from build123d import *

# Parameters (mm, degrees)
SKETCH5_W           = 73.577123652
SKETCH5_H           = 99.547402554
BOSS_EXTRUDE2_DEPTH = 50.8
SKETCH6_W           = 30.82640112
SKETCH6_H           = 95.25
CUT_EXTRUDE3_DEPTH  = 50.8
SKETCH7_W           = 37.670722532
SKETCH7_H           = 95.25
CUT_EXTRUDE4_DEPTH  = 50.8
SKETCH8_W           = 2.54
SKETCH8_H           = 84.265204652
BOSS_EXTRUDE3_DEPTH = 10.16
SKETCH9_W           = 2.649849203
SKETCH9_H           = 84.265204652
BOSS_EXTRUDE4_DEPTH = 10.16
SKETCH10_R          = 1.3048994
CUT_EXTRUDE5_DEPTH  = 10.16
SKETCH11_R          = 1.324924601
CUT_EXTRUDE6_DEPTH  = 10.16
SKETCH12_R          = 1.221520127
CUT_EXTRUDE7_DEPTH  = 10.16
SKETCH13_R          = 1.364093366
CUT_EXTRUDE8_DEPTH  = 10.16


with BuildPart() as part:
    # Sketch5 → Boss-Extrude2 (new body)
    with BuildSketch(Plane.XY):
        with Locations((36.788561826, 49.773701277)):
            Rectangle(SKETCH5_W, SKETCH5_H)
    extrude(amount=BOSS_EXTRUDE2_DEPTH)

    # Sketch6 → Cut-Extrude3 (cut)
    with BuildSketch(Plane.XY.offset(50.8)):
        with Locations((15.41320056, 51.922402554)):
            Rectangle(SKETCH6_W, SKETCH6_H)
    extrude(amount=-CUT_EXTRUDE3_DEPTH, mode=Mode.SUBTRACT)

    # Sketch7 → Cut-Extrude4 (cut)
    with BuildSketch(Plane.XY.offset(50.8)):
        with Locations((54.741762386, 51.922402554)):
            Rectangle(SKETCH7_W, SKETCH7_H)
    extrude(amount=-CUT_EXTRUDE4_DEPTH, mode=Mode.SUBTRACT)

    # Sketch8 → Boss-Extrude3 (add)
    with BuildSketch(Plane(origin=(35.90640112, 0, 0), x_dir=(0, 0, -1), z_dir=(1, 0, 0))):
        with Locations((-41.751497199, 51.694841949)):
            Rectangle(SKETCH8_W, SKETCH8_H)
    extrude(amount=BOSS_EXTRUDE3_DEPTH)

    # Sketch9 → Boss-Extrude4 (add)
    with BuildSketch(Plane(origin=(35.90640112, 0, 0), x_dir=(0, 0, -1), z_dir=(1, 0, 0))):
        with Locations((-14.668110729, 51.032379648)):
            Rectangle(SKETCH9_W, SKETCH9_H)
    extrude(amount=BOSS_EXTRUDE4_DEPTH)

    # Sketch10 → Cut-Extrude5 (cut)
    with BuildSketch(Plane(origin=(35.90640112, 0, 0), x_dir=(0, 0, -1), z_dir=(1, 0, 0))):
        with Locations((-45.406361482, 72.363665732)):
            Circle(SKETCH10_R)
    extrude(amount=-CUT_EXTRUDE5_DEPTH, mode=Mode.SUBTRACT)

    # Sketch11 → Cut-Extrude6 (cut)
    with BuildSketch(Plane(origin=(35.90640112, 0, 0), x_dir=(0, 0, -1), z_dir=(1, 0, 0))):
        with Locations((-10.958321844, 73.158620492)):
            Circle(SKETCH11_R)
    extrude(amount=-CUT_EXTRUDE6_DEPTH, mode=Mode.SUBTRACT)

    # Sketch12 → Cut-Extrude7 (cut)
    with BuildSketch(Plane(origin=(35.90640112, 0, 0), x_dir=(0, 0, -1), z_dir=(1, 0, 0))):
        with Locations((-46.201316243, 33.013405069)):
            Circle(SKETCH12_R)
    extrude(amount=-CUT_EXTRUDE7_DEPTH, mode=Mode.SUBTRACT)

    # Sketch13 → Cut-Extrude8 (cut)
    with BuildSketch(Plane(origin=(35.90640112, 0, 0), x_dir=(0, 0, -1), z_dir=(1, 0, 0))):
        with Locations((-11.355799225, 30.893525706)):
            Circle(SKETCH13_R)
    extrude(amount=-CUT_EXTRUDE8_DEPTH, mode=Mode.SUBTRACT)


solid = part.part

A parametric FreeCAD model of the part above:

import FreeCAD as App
import Part
import Sketcher
Q = App.Units.Quantity

doc = App.newDocument("Part")
body = doc.addObject("PartDesign::Body", "Body")

# Sketch on XY plane
sketch1 = body.newObject("Sketcher::SketchObject", "Sketch")
sketch1.AttachmentSupport = (doc.getObject("XY_Plane"), [""])
sketch1.MapMode = "FlatFace"
sketch1.addGeometry(Part.LineSegment(App.Vector(0, 99.547403, 0), App.Vector(0, 0, 0)), False)
sketch1.addGeometry(Part.LineSegment(App.Vector(0, 0, 0), App.Vector(73.577124, 0, 0)), False)
sketch1.addGeometry(Part.LineSegment(App.Vector(73.577124, 0, 0), App.Vector(73.577124, 99.547403, 0)), False)
sketch1.addGeometry(Part.LineSegment(App.Vector(73.577124, 99.547403, 0), App.Vector(0, 99.547403, 0)), False)
sketch1.addConstraint(Sketcher.Constraint("Coincident", 0, 2, 1, 1))
sketch1.addConstraint(Sketcher.Constraint("Coincident", 1, 2, 2, 1))
sketch1.addConstraint(Sketcher.Constraint("Coincident", 2, 2, 3, 1))
sketch1.addConstraint(Sketcher.Constraint("Coincident", 3, 2, 0, 1))
sketch1.addConstraint(Sketcher.Constraint("Vertical", 0))
sketch1.addConstraint(Sketcher.Constraint("Horizontal", 1))
sketch1.addConstraint(Sketcher.Constraint("Vertical", 2))
sketch1.addConstraint(Sketcher.Constraint("Horizontal", 3))
sketch1.addConstraint(Sketcher.Constraint("Coincident", 0, 2, -1, 1))
sketch1.addConstraint(Sketcher.Constraint("DistanceX", 1, 1, 1, 2, Q("73.577124 mm")))
sketch1.addConstraint(Sketcher.Constraint("DistanceY", 0, 2, 0, 1, Q("99.547403 mm")))
pad1 = body.newObject("PartDesign::Pad", "Pad")
pad1.Profile = sketch1
pad1.Length = Q("2 in")

# Sketch on XY plane
sketch2 = body.newObject("Sketcher::SketchObject", "Sketch001")
sketch2.AttachmentSupport = (doc.getObject("XY_Plane"), [""])
sketch2.MapMode = "FlatFace"
sketch2.AttachmentOffset = App.Placement(App.Vector(0, 0, 2 * 25.4), App.Rotation())
sketch2.addGeometry(Part.LineSegment(App.Vector(0, 99.547403, 0), App.Vector(0, 4.297403, 0)), False)
sketch2.addGeometry(Part.LineSegment(App.Vector(0, 4.297403, 0), App.Vector(30.826401, 4.297403, 0)), False)
sketch2.addGeometry(Part.LineSegment(App.Vector(30.826401, 4.297403, 0), App.Vector(30.826401, 99.547403, 0)), False)
sketch2.addGeometry(Part.LineSegment(App.Vector(30.826401, 99.547403, 0), App.Vector(0, 99.547403, 0)), False)
sketch2.addConstraint(Sketcher.Constraint("Coincident", 0, 2, 1, 1))
sketch2.addConstraint(Sketcher.Constraint("Coincident", 1, 2, 2, 1))
sketch2.addConstraint(Sketcher.Constraint("Coincident", 2, 2, 3, 1))
sketch2.addConstraint(Sketcher.Constraint("Coincident", 3, 2, 0, 1))
sketch2.addConstraint(Sketcher.Constraint("Vertical", 0))
sketch2.addConstraint(Sketcher.Constraint("Horizontal", 1))
sketch2.addConstraint(Sketcher.Constraint("Vertical", 2))
sketch2.addConstraint(Sketcher.Constraint("Horizontal", 3))
sketch2.addConstraint(Sketcher.Constraint("PointOnObject", 0, 2, -2))
sketch2.addConstraint(Sketcher.Constraint("DistanceY", 0, 2, 0, 1, Q("3.75 in")))
sketch2.addConstraint(Sketcher.Constraint("DistanceX", 1, 1, 1, 2, Q("30.826401 mm")))
sketch2.addConstraint(Sketcher.Constraint("DistanceY", -1, 1, 0, 2, Q("4.297403 mm")))
pocket1 = body.newObject("PartDesign::Pocket", "Pocket")
pocket1.Profile = sketch2
pocket1.Length = Q("2 in")

# Sketch on XY plane
sketch3 = body.newObject("Sketcher::SketchObject", "Sketch002")
sketch3.AttachmentSupport = (doc.getObject("XY_Plane"), [""])
sketch3.MapMode = "FlatFace"
sketch3.AttachmentOffset = App.Placement(App.Vector(0, 0, 2 * 25.4), App.Rotation())
sketch3.addGeometry(Part.LineSegment(App.Vector(35.906401, 99.547403, 0), App.Vector(35.906401, 4.297403, 0)), False)
sketch3.addGeometry(Part.LineSegment(App.Vector(35.906401, 4.297403, 0), App.Vector(73.577124, 4.297403, 0)), False)
sketch3.addGeometry(Part.LineSegment(App.Vector(73.577124, 4.297403, 0), App.Vector(73.577124, 99.547403, 0)), False)
sketch3.addGeometry(Part.LineSegment(App.Vector(73.577124, 99.547403, 0), App.Vector(35.906401, 99.547403, 0)), False)
sketch3.addConstraint(Sketcher.Constraint("Coincident", 0, 2, 1, 1))
sketch3.addConstraint(Sketcher.Constraint("Coincident", 1, 2, 2, 1))
sketch3.addConstraint(Sketcher.Constraint("Coincident", 2, 2, 3, 1))
sketch3.addConstraint(Sketcher.Constraint("Coincident", 3, 2, 0, 1))
sketch3.addConstraint(Sketcher.Constraint("Vertical", 0))
sketch3.addConstraint(Sketcher.Constraint("Horizontal", 1))
sketch3.addConstraint(Sketcher.Constraint("Vertical", 2))
sketch3.addConstraint(Sketcher.Constraint("Horizontal", 3))
sketch3.addConstraint(Sketcher.Constraint("DistanceY", 0, 2, 0, 1, Q("3.75 in")))
sketch3.addConstraint(Sketcher.Constraint("DistanceX", -1, 1, 0, 2, Q("35.906401 mm")))
sketch3.addConstraint(Sketcher.Constraint("DistanceX", 1, 1, 1, 2, Q("37.670723 mm")))
sketch3.addConstraint(Sketcher.Constraint("DistanceY", -1, 1, 0, 2, Q("4.297403 mm")))
pocket2 = body.newObject("PartDesign::Pocket", "Pocket001")
pocket2.Profile = sketch3
pocket2.Length = Q("2 in")

# Sketch on YZ plane
sketch4 = body.newObject("Sketcher::SketchObject", "Sketch003")
sketch4.AttachmentSupport = (doc.getObject("YZ_Plane"), [""])
sketch4.MapMode = "FlatFace"
sketch4.AttachmentOffset = App.Placement(App.Vector(0, 0, 35.906401), App.Rotation())
sketch4.addGeometry(Part.LineSegment(App.Vector(93.827444, 43.021497, 0), App.Vector(9.56224, 43.021497, 0)), False)
sketch4.addGeometry(Part.LineSegment(App.Vector(9.56224, 43.021497, 0), App.Vector(9.56224, 40.481497, 0)), False)
sketch4.addGeometry(Part.LineSegment(App.Vector(9.56224, 40.481497, 0), App.Vector(93.827444, 40.481497, 0)), False)
sketch4.addGeometry(Part.LineSegment(App.Vector(93.827444, 40.481497, 0), App.Vector(93.827444, 43.021497, 0)), False)
sketch4.addConstraint(Sketcher.Constraint("Coincident", 0, 2, 1, 1))
sketch4.addConstraint(Sketcher.Constraint("Coincident", 1, 2, 2, 1))
sketch4.addConstraint(Sketcher.Constraint("Coincident", 2, 2, 3, 1))
sketch4.addConstraint(Sketcher.Constraint("Coincident", 3, 2, 0, 1))
sketch4.addConstraint(Sketcher.Constraint("Horizontal", 0))
sketch4.addConstraint(Sketcher.Constraint("Vertical", 1))
sketch4.addConstraint(Sketcher.Constraint("Horizontal", 2))
sketch4.addConstraint(Sketcher.Constraint("Vertical", 3))
sketch4.addConstraint(Sketcher.Constraint("DistanceY", 1, 2, 1, 1, Q("0.1 in")))
sketch4.addConstraint(Sketcher.Constraint("DistanceX", 0, 2, 0, 1, Q("84.265205 mm")))
sketch4.addConstraint(Sketcher.Constraint("DistanceX", -1, 1, 0, 2, Q("9.56224 mm")))
sketch4.addConstraint(Sketcher.Constraint("DistanceY", -1, 1, 0, 2, Q("43.021497 mm")))
pad2 = body.newObject("PartDesign::Pad", "Pad001")
pad2.Profile = sketch4
pad2.Length = Q("0.4 in")

# Sketch on YZ plane
sketch5 = body.newObject("Sketcher::SketchObject", "Sketch004")
sketch5.AttachmentSupport = (doc.getObject("YZ_Plane"), [""])
sketch5.MapMode = "FlatFace"
sketch5.AttachmentOffset = App.Placement(App.Vector(0, 0, 35.906401), App.Rotation())
sketch5.addGeometry(Part.LineSegment(App.Vector(93.164982, 15.993035, 0), App.Vector(8.899777, 15.993035, 0)), False)
sketch5.addGeometry(Part.LineSegment(App.Vector(8.899777, 15.993035, 0), App.Vector(8.899777, 13.343186, 0)), False)
sketch5.addGeometry(Part.LineSegment(App.Vector(8.899777, 13.343186, 0), App.Vector(93.164982, 13.343186, 0)), False)
sketch5.addGeometry(Part.LineSegment(App.Vector(93.164982, 13.343186, 0), App.Vector(93.164982, 15.993035, 0)), False)
sketch5.addConstraint(Sketcher.Constraint("Coincident", 0, 2, 1, 1))
sketch5.addConstraint(Sketcher.Constraint("Coincident", 1, 2, 2, 1))
sketch5.addConstraint(Sketcher.Constraint("Coincident", 2, 2, 3, 1))
sketch5.addConstraint(Sketcher.Constraint("Coincident", 3, 2, 0, 1))
sketch5.addConstraint(Sketcher.Constraint("Horizontal", 0))
sketch5.addConstraint(Sketcher.Constraint("Vertical", 1))
sketch5.addConstraint(Sketcher.Constraint("Horizontal", 2))
sketch5.addConstraint(Sketcher.Constraint("Vertical", 3))
sketch5.addConstraint(Sketcher.Constraint("DistanceY", 1, 2, 1, 1, Q("2.649849 mm")))
sketch5.addConstraint(Sketcher.Constraint("DistanceX", 0, 2, 0, 1, Q("84.265205 mm")))
sketch5.addConstraint(Sketcher.Constraint("DistanceX", -1, 1, 2, 2, Q("93.164982 mm")))
sketch5.addConstraint(Sketcher.Constraint("DistanceY", -1, 1, 0, 2, Q("15.993035 mm")))
pad3 = body.newObject("PartDesign::Pad", "Pad002")
pad3.Profile = sketch5
pad3.Length = Q("0.4 in")

# Sketch on YZ plane
sketch6 = body.newObject("Sketcher::SketchObject", "Sketch005")
sketch6.AttachmentSupport = (doc.getObject("YZ_Plane"), [""])
sketch6.MapMode = "FlatFace"
sketch6.AttachmentOffset = App.Placement(App.Vector(0, 0, 35.906401), App.Rotation())
sketch6.addGeometry(Part.Circle(App.Vector(72.363666, 45.406361, 0), App.Vector(0, 0, 1), 1.304899), False)
sketch6.addConstraint(Sketcher.Constraint("Diameter", 0, Q("2.609799 mm")))
sketch6.addConstraint(Sketcher.Constraint("DistanceY", -1, 1, 0, 3, Q("45.406361 mm")))
sketch6.addConstraint(Sketcher.Constraint("DistanceX", -1, 1, 0, 3, Q("72.363666 mm")))
pocket3 = body.newObject("PartDesign::Pocket", "Pocket002")
pocket3.Profile = sketch6
pocket3.Length = Q("0.4 in")

# Sketch on YZ plane
sketch7 = body.newObject("Sketcher::SketchObject", "Sketch006")
sketch7.AttachmentSupport = (doc.getObject("YZ_Plane"), [""])
sketch7.MapMode = "FlatFace"
sketch7.AttachmentOffset = App.Placement(App.Vector(0, 0, 35.906401), App.Rotation())
sketch7.addGeometry(Part.Circle(App.Vector(73.15862, 10.958322, 0), App.Vector(0, 0, 1), 1.324925), False)
sketch7.addConstraint(Sketcher.Constraint("Diameter", 0, Q("2.649849 mm")))
sketch7.addConstraint(Sketcher.Constraint("DistanceX", -1, 1, 0, 3, Q("73.15862 mm")))
sketch7.addConstraint(Sketcher.Constraint("DistanceY", -1, 1, 0, 3, Q("10.958322 mm")))
pocket4 = body.newObject("PartDesign::Pocket", "Pocket003")
pocket4.Profile = sketch7
pocket4.Length = Q("0.4 in")

# Sketch on YZ plane
sketch8 = body.newObject("Sketcher::SketchObject", "Sketch007")
sketch8.AttachmentSupport = (doc.getObject("YZ_Plane"), [""])
sketch8.MapMode = "FlatFace"
sketch8.AttachmentOffset = App.Placement(App.Vector(0, 0, 35.906401), App.Rotation())
sketch8.addGeometry(Part.Circle(App.Vector(33.013405, 46.201316, 0), App.Vector(0, 0, 1), 1.22152), False)
sketch8.addConstraint(Sketcher.Constraint("Diameter", 0, Q("2.44304 mm")))
sketch8.addConstraint(Sketcher.Constraint("DistanceX", -1, 1, 0, 3, Q("33.013405 mm")))
sketch8.addConstraint(Sketcher.Constraint("DistanceY", -1, 1, 0, 3, Q("46.201316 mm")))
pocket5 = body.newObject("PartDesign::Pocket", "Pocket004")
pocket5.Profile = sketch8
pocket5.Length = Q("0.4 in")

# Sketch on YZ plane
sketch9 = body.newObject("Sketcher::SketchObject", "Sketch008")
sketch9.AttachmentSupport = (doc.getObject("YZ_Plane"), [""])
sketch9.MapMode = "FlatFace"
sketch9.AttachmentOffset = App.Placement(App.Vector(0, 0, 35.906401), App.Rotation())
sketch9.addGeometry(Part.Circle(App.Vector(30.893526, 11.355799, 0), App.Vector(0, 0, 1), 1.364093), False)
sketch9.addConstraint(Sketcher.Constraint("Diameter", 0, Q("2.728187 mm")))
sketch9.addConstraint(Sketcher.Constraint("DistanceY", -1, 1, 0, 3, Q("11.355799 mm")))
sketch9.addConstraint(Sketcher.Constraint("DistanceX", -1, 1, 0, 3, Q("30.893526 mm")))
pocket6 = body.newObject("PartDesign::Pocket", "Pocket005")
pocket6.Profile = sketch9
pocket6.Length = Q("0.4 in")

doc.recompute()
